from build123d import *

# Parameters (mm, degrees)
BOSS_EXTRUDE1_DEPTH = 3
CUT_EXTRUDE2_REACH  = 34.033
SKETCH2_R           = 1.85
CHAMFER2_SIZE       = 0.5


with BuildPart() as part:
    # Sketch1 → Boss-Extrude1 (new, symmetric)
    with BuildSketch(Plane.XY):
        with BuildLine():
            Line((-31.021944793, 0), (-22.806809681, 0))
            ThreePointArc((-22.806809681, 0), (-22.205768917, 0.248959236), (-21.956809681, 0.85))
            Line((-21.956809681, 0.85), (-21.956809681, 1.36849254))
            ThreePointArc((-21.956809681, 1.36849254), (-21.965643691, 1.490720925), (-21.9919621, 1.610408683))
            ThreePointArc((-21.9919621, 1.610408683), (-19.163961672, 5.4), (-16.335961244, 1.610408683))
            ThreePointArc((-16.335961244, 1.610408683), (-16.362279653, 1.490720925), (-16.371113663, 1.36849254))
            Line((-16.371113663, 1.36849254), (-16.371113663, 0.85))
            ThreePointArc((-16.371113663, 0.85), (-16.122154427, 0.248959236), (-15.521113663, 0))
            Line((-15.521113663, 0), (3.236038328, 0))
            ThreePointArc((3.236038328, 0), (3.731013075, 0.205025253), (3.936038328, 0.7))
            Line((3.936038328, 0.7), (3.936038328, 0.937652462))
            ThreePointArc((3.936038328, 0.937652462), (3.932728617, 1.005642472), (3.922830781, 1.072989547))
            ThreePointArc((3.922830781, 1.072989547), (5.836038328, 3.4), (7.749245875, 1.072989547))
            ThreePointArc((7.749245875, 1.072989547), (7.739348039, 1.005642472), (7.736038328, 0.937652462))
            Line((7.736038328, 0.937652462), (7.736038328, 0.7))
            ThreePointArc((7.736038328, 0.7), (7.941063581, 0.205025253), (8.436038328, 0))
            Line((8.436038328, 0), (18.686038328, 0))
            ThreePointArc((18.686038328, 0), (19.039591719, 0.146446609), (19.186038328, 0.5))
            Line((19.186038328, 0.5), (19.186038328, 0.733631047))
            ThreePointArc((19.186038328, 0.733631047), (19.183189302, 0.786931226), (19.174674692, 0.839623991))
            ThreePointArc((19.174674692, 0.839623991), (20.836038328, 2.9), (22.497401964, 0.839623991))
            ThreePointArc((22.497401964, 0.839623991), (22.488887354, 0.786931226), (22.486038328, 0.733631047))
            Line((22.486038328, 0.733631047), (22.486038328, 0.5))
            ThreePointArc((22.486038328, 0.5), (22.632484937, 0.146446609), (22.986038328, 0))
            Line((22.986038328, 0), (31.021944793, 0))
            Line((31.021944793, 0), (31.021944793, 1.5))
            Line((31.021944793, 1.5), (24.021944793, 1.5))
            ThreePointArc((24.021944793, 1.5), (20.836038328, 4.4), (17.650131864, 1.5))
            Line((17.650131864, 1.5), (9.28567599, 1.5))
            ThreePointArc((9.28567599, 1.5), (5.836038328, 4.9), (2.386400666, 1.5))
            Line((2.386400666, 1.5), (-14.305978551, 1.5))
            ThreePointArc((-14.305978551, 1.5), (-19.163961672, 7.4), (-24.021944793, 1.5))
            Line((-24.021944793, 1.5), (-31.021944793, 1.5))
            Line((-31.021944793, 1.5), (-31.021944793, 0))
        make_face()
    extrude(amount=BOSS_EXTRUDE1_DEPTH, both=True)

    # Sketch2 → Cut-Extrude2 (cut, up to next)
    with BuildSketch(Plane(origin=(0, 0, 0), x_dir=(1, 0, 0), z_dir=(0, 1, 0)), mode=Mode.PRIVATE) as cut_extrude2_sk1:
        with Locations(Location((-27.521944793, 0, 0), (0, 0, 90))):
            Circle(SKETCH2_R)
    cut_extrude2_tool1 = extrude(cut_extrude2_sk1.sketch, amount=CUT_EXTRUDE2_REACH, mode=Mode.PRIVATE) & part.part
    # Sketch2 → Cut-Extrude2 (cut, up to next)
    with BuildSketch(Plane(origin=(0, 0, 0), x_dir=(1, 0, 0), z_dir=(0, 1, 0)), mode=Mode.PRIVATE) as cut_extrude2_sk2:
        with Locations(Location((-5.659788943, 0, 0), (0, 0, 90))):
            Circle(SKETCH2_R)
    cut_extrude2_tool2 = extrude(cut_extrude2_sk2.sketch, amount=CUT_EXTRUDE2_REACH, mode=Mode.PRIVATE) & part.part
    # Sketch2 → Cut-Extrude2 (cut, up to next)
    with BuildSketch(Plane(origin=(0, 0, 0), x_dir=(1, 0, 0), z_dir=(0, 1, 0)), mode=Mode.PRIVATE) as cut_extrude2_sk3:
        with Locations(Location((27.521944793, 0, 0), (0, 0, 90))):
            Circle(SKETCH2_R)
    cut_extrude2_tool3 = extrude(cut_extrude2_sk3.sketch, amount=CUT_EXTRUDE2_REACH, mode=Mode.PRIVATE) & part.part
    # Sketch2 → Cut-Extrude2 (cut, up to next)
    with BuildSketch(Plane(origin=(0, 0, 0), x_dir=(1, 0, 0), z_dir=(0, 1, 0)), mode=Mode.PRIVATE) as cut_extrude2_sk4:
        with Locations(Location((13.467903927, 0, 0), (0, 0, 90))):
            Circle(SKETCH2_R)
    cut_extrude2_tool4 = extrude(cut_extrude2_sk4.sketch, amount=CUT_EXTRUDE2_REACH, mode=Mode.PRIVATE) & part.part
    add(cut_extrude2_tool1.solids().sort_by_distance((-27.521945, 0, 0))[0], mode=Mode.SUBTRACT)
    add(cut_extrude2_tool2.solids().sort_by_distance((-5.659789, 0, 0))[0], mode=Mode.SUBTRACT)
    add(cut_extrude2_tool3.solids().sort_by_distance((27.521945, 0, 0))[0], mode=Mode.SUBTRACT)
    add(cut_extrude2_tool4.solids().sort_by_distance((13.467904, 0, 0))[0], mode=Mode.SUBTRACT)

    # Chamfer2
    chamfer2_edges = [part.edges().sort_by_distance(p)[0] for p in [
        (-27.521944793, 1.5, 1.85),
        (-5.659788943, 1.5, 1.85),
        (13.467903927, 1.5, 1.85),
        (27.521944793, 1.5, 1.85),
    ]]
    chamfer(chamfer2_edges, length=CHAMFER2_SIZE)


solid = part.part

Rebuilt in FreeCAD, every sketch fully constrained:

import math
import FreeCAD as App
import Part
import Sketcher


def edges_at(feature, points):
    """Names of the edges that pass closest to the given points."""
    edges = feature.Shape.Edges
    near = lambda p: min(range(len(edges)), key=lambda i: edges[i].distToShape(Part.Vertex(*p))[0])
    return sorted({f"Edge{near(p) + 1}" for p in points})

doc = App.newDocument("Part")
params = doc.addObject("Spreadsheet::Sheet", "Params")
for row, (alias, value) in enumerate([
    ("sketch1_radius", "0.7 mm"),
    ("sketch1_radius2", "0.5 mm"),
    ("sketch1_radius3", "1.7 mm"),
    ("sketch1_radius4", "3.2 mm"),
    ("sketch1_width", "7 mm"),
    ("pad1_length", "6 mm"),
    ("sketch2_diameter", "3.7 mm"),
    ("sketch3_diameter", "3.7 mm"),
    ("sketch4_diameter", "3.7 mm"),
    ("sketch5_diameter", "3.7 mm"),
    ("chamfer_size", "0.5 mm"),
], start=1):
    params.set(f"A{row}", alias)
    params.set(f"B{row}", "=" + value)
    params.setAlias(f"B{row}", alias)

body = doc.addObject("PartDesign::Body", "Body")

# Sketch on XY plane
sketch1 = doc.addObject("Sketcher::SketchObject", "Sketch")
body.addObject(sketch1)
sketch1.AttachmentSupport = (doc.XY_Plane, [""])
sketch1.MapMode = "FlatFace"
sketch1.addGeometry([
    Part.LineSegment(App.Vector(-31.021945, 0, 0), App.Vector(-22.80681, 0, 0)),  # 0
    Part.ArcOfCircle(Part.Circle(App.Vector(-22.80681, 0.85, 0), App.Vector(0, 0, 1), 0.85), math.radians(-90), math.radians(0)),  # 1
    Part.LineSegment(App.Vector(-21.95681, 0.85, 0), App.Vector(-21.95681, 1.368493, 0)),  # 2
    Part.ArcOfCircle(Part.Circle(App.Vector(-22.80681, 1.368493, 0), App.Vector(0, 0, 1), 0.85), math.radians(0), math.radians(16.535372)),  # 3
    Part.ArcOfCircle(Part.Circle(App.Vector(-19.163962, 2.45, 0), App.Vector(0, 0, 1), 2.95), math.radians(-16.535372), math.radians(196.535372)),  # 4
    Part.ArcOfCircle(Part.Circle(App.Vector(-15.521114, 1.368493, 0), App.Vector(0, 0, 1), 0.85), math.radians(163.464628), math.radians(180)),  # 5
    Part.LineSegment(App.Vector(-16.371114, 1.368493, 0), App.Vector(-16.371114, 0.85, 0)),  # 6
    Part.ArcOfCircle(Part.Circle(App.Vector(-15.521114, 0.85, 0), App.Vector(0, 0, 1), 0.85), math.radians(180), math.radians(270)),  # 7
    Part.LineSegment(App.Vector(-15.521114, 0, 0), App.Vector(3.236038, 0, 0)),  # 8
    Part.ArcOfCircle(Part.Circle(App.Vector(3.236038, 0.7, 0), App.Vector(0, 0, 1), 0.7), math.radians(-90), math.radians(0)),  # 9
    Part.LineSegment(App.Vector(3.936038, 0.7, 0), App.Vector(3.936038, 0.937652, 0)),  # 10
    Part.ArcOfCircle(Part.Circle(App.Vector(3.236038, 0.937652, 0), App.Vector(0, 0, 1), 0.7), math.radians(0), math.radians(11.147691)),  # 11
    Part.ArcOfCircle(Part.Circle(App.Vector(5.836038, 1.45, 0), App.Vector(0, 0, 1), 1.95), math.radians(-11.147691), math.radians(191.147691)),  # 12
    Part.ArcOfCircle(Part.Circle(App.Vector(8.436038, 0.937652, 0), App.Vector(0, 0, 1), 0.7), math.radians(168.852309), math.radians(180)),  # 13
    Part.LineSegment(App.Vector(7.736038, 0.937652, 0), App.Vector(7.736038, 0.7, 0)),  # 14
    Part.ArcOfCircle(Part.Circle(App.Vector(8.436038, 0.7, 0), App.Vector(0, 0, 1), 0.7), math.radians(180), math.radians(270)),  # 15
    Part.LineSegment(App.Vector(8.436038, 0, 0), App.Vector(18.686038, 0, 0)),  # 16
    Part.ArcOfCircle(Part.Circle(App.Vector(18.686038, 0.5, 0), App.Vector(0, 0, 1), 0.5), math.radians(-90), math.radians(0)),  # 17
    Part.LineSegment(App.Vector(19.186038, 0.5, 0), App.Vector(19.186038, 0.733631, 0)),  # 18
    Part.ArcOfCircle(Part.Circle(App.Vector(18.686038, 0.733631, 0), App.Vector(0, 0, 1), 0.5), math.radians(0), math.radians(12.238755)),  # 19
    Part.ArcOfCircle(Part.Circle(App.Vector(20.836038, 1.2, 0), App.Vector(0, 0, 1), 1.7), math.radians(-12.238756), math.radians(192.238756)),  # 20
    Part.ArcOfCircle(Part.Circle(App.Vector(22.986038, 0.733631, 0), App.Vector(0, 0, 1), 0.5), math.radians(167.761245), math.radians(180)),  # 21
    Part.LineSegment(App.Vector(22.486038, 0.733631, 0), App.Vector(22.486038, 0.5, 0)),  # 22
    Part.ArcOfCircle(Part.Circle(App.Vector(22.986038, 0.5, 0), App.Vector(0, 0, 1), 0.5), math.radians(180), math.radians(270)),  # 23
    Part.LineSegment(App.Vector(22.986038, 0, 0), App.Vector(31.021945, 0, 0)),  # 24
    Part.LineSegment(App.Vector(31.021945, 0, 0), App.Vector(31.021945, 1.5, 0)),  # 25
    Part.LineSegment(App.Vector(31.021945, 1.5, 0), App.Vector(24.021945, 1.5, 0)),  # 26
    Part.ArcOfCircle(Part.Circle(App.Vector(20.836038, 1.2, 0), App.Vector(0, 0, 1), 3.2), math.radians(5.379379), math.radians(174.620621)),  # 27
    Part.LineSegment(App.Vector(17.650132, 1.5, 0), App.Vector(9.285676, 1.5, 0)),  # 28
    Part.ArcOfCircle(Part.Circle(App.Vector(5.836038, 1.45, 0), App.Vector(0, 0, 1), 3.45), math.radians(0.830403), math.radians(179.169597)),  # 29
    Part.LineSegment(App.Vector(2.386401, 1.5, 0), App.Vector(-14.305979, 1.5, 0)),  # 30
    Part.ArcOfCircle(Part.Circle(App.Vector(-19.163962, 2.45, 0), App.Vector(0, 0, 1), 4.95), math.radians(-11.064807), math.radians(191.064807)),  # 31
    Part.LineSegment(App.Vector(-24.021945, 1.5, 0), App.Vector(-31.021945, 1.5, 0)),  # 32
    Part.LineSegment(App.Vector(-31.021945, 1.5, 0), App.Vector(-31.021945, 0, 0)),  # 33
], False)
sketch1.addConstraint([
    Sketcher.Constraint("Tangent", 0, 2, 1, 1),
    Sketcher.Constraint("Tangent", 1, 2, 2, 1),
    Sketcher.Constraint("Tangent", 2, 2, 3, 1),
    Sketcher.Constraint("Tangent", 3, 2, 4, 2),
    Sketcher.Constraint("Tangent", 4, 1, 5, 1),
    Sketcher.Constraint("Tangent", 5, 2, 6, 1),
    Sketcher.Constraint("Tangent", 6, 2, 7, 1),
    Sketcher.Constraint("Tangent", 7, 2, 8, 1),
    Sketcher.Constraint("Tangent", 8, 2, 9, 1),
    Sketcher.Constraint("Tangent", 9, 2, 10, 1),
    Sketcher.Constraint("Tangent", 10, 2, 11, 1),
    Sketcher.Constraint("Tangent", 11, 2, 12, 2),
    Sketcher.Constraint("Tangent", 12, 1, 13, 1),
    Sketcher.Constraint("Tangent", 13, 2, 14, 1),
    Sketcher.Constraint("Tangent", 14, 2, 15, 1),
    Sketcher.Constraint("Tangent", 15, 2, 16, 1),
    Sketcher.Constraint("Tangent", 16, 2, 17, 1),
    Sketcher.Constraint("Tangent", 17, 2, 18, 1),
    Sketcher.Constraint("Tangent", 18, 2, 19, 1),
    Sketcher.Constraint("Tangent", 19, 2, 20, 2),
    Sketcher.Constraint("Tangent", 20, 1, 21, 1),
    Sketcher.Constraint("Tangent", 21, 2, 22, 1),
    Sketcher.Constraint("Tangent", 22, 2, 23, 1),
    Sketcher.Constraint("Tangent", 23, 2, 24, 1),
    Sketcher.Constraint("Coincident", 24, 2, 25, 1),
    Sketcher.Constraint("Coincident", 25, 2, 26, 1),
    Sketcher.Constraint("Coincident", 26, 2, 27, 1),
    Sketcher.Constraint("Coincident", 27, 2, 28, 1),
    Sketcher.Constraint("Coincident", 28, 2, 29, 1),
    Sketcher.Constraint("Coincident", 29, 2, 30, 1),
    Sketcher.Constraint("Coincident", 30, 2, 31, 1),
    Sketcher.Constraint("Coincident", 31, 2, 32, 1),
    Sketcher.Constraint("Coincident", 32, 2, 33, 1),
    Sketcher.Constraint("Coincident", 33, 2, 0, 1),
    Sketcher.Constraint("Horizontal", 0),
    Sketcher.Constraint("Vertical", 2),
    Sketcher.Constraint("Vertical", 6),
    Sketcher.Constraint("Horizontal", 8),
    Sketcher.Constraint("Vertical", 10),
    Sketcher.Constraint("Vertical", 14),
    Sketcher.Constraint("Horizontal", 16),
    Sketcher.Constraint("Vertical", 18),
    Sketcher.Constraint("Vertical", 22),
    Sketcher.Constraint("Horizontal", 24),
    Sketcher.Constraint("Vertical", 25),
    Sketcher.Constraint("Horizontal", 26),
    Sketcher.Constraint("Horizontal", 28),
    Sketcher.Constraint("Horizontal", 30),
    Sketcher.Constraint("Horizontal", 32),
    Sketcher.Constraint("Vertical", 33),
    Sketcher.Constraint("Coincident", 27, 3, 20, 3),
    Sketcher.Constraint("Coincident", 29, 3, 12, 3),
    Sketcher.Constraint("Coincident", 31, 3, 4, 3),
    Sketcher.Constraint("Equal", 1, 3),
    Sketcher.Constraint("Equal", 3, 5),
    Sketcher.Constraint("Equal", 5, 7),
    Sketcher.Constraint("Equal", 9, 11),
    Sketcher.Constraint("Equal", 11, 13),
    Sketcher.Constraint("Equal", 13, 15),
    Sketcher.Constraint("Equal", 17, 19),
    Sketcher.Constraint("Equal", 19, 21),
    Sketcher.Constraint("Equal", 21, 23),
    Sketcher.Constraint("Symmetric", 24, 2, 33, 2, -1, 1),
    Sketcher.Constraint("Symmetric", 26, 2, 31, 2, -2),
    Sketcher.Constraint("PointOnObject", 0, 2, -1),
    Sketcher.Constraint("PointOnObject", 7, 2, -1),
    Sketcher.Constraint("PointOnObject", 15, 2, -1),
    Sketcher.Constraint("Horizontal", 3, 3, 5, 3),
    Sketcher.Constraint("Horizontal", 11, 3, 13, 3),
    Sketcher.Constraint("Horizontal", 19, 3, 21, 3),
    Sketcher.Constraint("Horizontal", 26, 2, 27, 2),
    Sketcher.Constraint("Horizontal", 28, 2, 29, 2),
    Sketcher.Constraint("Radius", 9, 0.7),
    Sketcher.Constraint("Radius", 17, 0.5),
    Sketcher.Constraint("Radius", 20, 1.7),
    Sketcher.Constraint("Radius", 27, 3.2),
    Sketcher.Constraint("DistanceX", 26, 2, 26, 1, 7.0),
    Sketcher.Constraint("Radius", 1, 0.85),
    Sketcher.Constraint("Radius", 4, 2.95),
    Sketcher.Constraint("Radius", 12, 1.95),
    Sketcher.Constraint("Radius", 29, 3.45),
    Sketcher.Constraint("Radius", 31, 4.95),
    Sketcher.Constraint("DistanceY", 25, 1, 25, 2, 1.5),
    Sketcher.Constraint("DistanceX", 4, 3, 12, 3, 25.0),
    Sketcher.Constraint("DistanceY", 12, 3, 4, 3, 1.0),
    Sketcher.Constraint("DistanceX", 12, 3, 20, 3, 15.0),
    Sketcher.Constraint("DistanceX", 16, 1, 16, 2, 10.25),
    Sketcher.Constraint("DistanceY", -1, 1, 20, 3, 1.2),
    Sketcher.Constraint("DistanceY", 1, 3, 4, 3, 1.6),
    Sketcher.Constraint("DistanceX", 4, 3, 9, 3, 22.4),
    Sketcher.Constraint("DistanceX", 4, 3, 4, 1, 2.828),
])
sketch1.setExpression("Constraints[72]", "Params.sketch1_radius")
sketch1.setExpression("Constraints[73]", "Params.sketch1_radius2")
sketch1.setExpression("Constraints[74]", "Params.sketch1_radius3")
sketch1.setExpression("Constraints[75]", "Params.sketch1_radius4")
sketch1.setExpression("Constraints[76]", "Params.sketch1_width")
pad1 = doc.addObject("PartDesign::Pad", "Pad")
body.addObject(pad1)
pad1.Profile = sketch1
pad1.setExpression("Length", "Params.pad1_length")
pad1.Midplane = True

# Sketch on XZ plane
sketch2 = doc.addObject("Sketcher::SketchObject", "Sketch001")
body.addObject(sketch2)
sketch2.AttachmentSupport = (doc.XZ_Plane, [""])
sketch2.MapMode = "FlatFace"
sketch2.addGeometry(Part.Circle(App.Vector(-27.521945, 0, 0), App.Vector(0, 0, 1), 1.85), False)
sketch2.addConstraint([
    Sketcher.Constraint("PointOnObject", 0, 3, -1),
    Sketcher.Constraint("Diameter", 0, 3.7),
    Sketcher.Constraint("DistanceX", 0, 3, -1, 1, 27.521945),
])
sketch2.setExpression("Constraints[1]", "Params.sketch2_diameter")
pocket1 = doc.addObject("PartDesign::Pocket", "Pocket")
body.addObject(pocket1)
pocket1.Profile = sketch2
pocket1.Type = "UpToFirst"

# Sketch on XZ plane
sketch3 = doc.addObject("Sketcher::SketchObject", "Sketch002")
body.addObject(sketch3)
sketch3.AttachmentSupport = (doc.XZ_Plane, [""])
sketch3.MapMode = "FlatFace"
sketch3.addGeometry(Part.Circle(App.Vector(-5.659789, 0, 0), App.Vector(0, 0, 1), 1.85), False)
sketch3.addConstraint([
    Sketcher.Constraint("PointOnObject", 0, 3, -1),
    Sketcher.Constraint("Diameter", 0, 3.7),
    Sketcher.Constraint("DistanceX", 0, 3, -1, 1, 5.659789),
])
sketch3.setExpression("Constraints[1]", "Params.sketch3_diameter")
pocket2 = doc.addObject("PartDesign::Pocket", "Pocket001")
body.addObject(pocket2)
pocket2.Profile = sketch3
pocket2.Type = "UpToFirst"

# Sketch on XZ plane
sketch4 = doc.addObject("Sketcher::SketchObject", "Sketch003")
body.addObject(sketch4)
sketch4.AttachmentSupport = (doc.XZ_Plane, [""])
sketch4.MapMode = "FlatFace"
sketch4.addGeometry(Part.Circle(App.Vector(27.521945, 0, 0), App.Vector(0, 0, 1), 1.85), False)
sketch4.addConstraint([
    Sketcher.Constraint("PointOnObject", 0, 3, -1),
    Sketcher.Constraint("Diameter", 0, 3.7),
    Sketcher.Constraint("DistanceX", -1, 1, 0, 3, 27.521945),
])
sketch4.setExpression("Constraints[1]", "Params.sketch4_diameter")
pocket3 = doc.addObject("PartDesign::Pocket", "Pocket002")
body.addObject(pocket3)
pocket3.Profile = sketch4
pocket3.Type = "UpToFirst"

# Sketch on XZ plane
sketch5 = doc.addObject("Sketcher::SketchObject", "Sketch004")
body.addObject(sketch5)
sketch5.AttachmentSupport = (doc.XZ_Plane, [""])
sketch5.MapMode = "FlatFace"
sketch5.addGeometry(Part.Circle(App.Vector(13.467904, 0, 0), App.Vector(0, 0, 1), 1.85), False)
sketch5.addConstraint([
    Sketcher.Constraint("PointOnObject", 0, 3, -1),
    Sketcher.Constraint("Diameter", 0, 3.7),
    Sketcher.Constraint("DistanceX", -1, 1, 0, 3, 13.467904),
])
sketch5.setExpression("Constraints[1]", "Params.sketch5_diameter")
pocket4 = doc.addObject("PartDesign::Pocket", "Pocket003")
body.addObject(pocket4)
pocket4.Profile = sketch5
pocket4.Type = "UpToFirst"
doc.recompute()

chamfer = doc.addObject("PartDesign::Chamfer", "Chamfer")
body.addObject(chamfer)
chamfer.Base = (pocket4, edges_at(pocket4, [
    (-27.522, 1.5, 1.85),
    (-5.66, 1.5, 1.85),
    (13.468, 1.5, 1.85),
    (27.522, 1.5, 1.85),
]))
chamfer.setExpression("Size", "Params.chamfer_size")

doc.recompute()
